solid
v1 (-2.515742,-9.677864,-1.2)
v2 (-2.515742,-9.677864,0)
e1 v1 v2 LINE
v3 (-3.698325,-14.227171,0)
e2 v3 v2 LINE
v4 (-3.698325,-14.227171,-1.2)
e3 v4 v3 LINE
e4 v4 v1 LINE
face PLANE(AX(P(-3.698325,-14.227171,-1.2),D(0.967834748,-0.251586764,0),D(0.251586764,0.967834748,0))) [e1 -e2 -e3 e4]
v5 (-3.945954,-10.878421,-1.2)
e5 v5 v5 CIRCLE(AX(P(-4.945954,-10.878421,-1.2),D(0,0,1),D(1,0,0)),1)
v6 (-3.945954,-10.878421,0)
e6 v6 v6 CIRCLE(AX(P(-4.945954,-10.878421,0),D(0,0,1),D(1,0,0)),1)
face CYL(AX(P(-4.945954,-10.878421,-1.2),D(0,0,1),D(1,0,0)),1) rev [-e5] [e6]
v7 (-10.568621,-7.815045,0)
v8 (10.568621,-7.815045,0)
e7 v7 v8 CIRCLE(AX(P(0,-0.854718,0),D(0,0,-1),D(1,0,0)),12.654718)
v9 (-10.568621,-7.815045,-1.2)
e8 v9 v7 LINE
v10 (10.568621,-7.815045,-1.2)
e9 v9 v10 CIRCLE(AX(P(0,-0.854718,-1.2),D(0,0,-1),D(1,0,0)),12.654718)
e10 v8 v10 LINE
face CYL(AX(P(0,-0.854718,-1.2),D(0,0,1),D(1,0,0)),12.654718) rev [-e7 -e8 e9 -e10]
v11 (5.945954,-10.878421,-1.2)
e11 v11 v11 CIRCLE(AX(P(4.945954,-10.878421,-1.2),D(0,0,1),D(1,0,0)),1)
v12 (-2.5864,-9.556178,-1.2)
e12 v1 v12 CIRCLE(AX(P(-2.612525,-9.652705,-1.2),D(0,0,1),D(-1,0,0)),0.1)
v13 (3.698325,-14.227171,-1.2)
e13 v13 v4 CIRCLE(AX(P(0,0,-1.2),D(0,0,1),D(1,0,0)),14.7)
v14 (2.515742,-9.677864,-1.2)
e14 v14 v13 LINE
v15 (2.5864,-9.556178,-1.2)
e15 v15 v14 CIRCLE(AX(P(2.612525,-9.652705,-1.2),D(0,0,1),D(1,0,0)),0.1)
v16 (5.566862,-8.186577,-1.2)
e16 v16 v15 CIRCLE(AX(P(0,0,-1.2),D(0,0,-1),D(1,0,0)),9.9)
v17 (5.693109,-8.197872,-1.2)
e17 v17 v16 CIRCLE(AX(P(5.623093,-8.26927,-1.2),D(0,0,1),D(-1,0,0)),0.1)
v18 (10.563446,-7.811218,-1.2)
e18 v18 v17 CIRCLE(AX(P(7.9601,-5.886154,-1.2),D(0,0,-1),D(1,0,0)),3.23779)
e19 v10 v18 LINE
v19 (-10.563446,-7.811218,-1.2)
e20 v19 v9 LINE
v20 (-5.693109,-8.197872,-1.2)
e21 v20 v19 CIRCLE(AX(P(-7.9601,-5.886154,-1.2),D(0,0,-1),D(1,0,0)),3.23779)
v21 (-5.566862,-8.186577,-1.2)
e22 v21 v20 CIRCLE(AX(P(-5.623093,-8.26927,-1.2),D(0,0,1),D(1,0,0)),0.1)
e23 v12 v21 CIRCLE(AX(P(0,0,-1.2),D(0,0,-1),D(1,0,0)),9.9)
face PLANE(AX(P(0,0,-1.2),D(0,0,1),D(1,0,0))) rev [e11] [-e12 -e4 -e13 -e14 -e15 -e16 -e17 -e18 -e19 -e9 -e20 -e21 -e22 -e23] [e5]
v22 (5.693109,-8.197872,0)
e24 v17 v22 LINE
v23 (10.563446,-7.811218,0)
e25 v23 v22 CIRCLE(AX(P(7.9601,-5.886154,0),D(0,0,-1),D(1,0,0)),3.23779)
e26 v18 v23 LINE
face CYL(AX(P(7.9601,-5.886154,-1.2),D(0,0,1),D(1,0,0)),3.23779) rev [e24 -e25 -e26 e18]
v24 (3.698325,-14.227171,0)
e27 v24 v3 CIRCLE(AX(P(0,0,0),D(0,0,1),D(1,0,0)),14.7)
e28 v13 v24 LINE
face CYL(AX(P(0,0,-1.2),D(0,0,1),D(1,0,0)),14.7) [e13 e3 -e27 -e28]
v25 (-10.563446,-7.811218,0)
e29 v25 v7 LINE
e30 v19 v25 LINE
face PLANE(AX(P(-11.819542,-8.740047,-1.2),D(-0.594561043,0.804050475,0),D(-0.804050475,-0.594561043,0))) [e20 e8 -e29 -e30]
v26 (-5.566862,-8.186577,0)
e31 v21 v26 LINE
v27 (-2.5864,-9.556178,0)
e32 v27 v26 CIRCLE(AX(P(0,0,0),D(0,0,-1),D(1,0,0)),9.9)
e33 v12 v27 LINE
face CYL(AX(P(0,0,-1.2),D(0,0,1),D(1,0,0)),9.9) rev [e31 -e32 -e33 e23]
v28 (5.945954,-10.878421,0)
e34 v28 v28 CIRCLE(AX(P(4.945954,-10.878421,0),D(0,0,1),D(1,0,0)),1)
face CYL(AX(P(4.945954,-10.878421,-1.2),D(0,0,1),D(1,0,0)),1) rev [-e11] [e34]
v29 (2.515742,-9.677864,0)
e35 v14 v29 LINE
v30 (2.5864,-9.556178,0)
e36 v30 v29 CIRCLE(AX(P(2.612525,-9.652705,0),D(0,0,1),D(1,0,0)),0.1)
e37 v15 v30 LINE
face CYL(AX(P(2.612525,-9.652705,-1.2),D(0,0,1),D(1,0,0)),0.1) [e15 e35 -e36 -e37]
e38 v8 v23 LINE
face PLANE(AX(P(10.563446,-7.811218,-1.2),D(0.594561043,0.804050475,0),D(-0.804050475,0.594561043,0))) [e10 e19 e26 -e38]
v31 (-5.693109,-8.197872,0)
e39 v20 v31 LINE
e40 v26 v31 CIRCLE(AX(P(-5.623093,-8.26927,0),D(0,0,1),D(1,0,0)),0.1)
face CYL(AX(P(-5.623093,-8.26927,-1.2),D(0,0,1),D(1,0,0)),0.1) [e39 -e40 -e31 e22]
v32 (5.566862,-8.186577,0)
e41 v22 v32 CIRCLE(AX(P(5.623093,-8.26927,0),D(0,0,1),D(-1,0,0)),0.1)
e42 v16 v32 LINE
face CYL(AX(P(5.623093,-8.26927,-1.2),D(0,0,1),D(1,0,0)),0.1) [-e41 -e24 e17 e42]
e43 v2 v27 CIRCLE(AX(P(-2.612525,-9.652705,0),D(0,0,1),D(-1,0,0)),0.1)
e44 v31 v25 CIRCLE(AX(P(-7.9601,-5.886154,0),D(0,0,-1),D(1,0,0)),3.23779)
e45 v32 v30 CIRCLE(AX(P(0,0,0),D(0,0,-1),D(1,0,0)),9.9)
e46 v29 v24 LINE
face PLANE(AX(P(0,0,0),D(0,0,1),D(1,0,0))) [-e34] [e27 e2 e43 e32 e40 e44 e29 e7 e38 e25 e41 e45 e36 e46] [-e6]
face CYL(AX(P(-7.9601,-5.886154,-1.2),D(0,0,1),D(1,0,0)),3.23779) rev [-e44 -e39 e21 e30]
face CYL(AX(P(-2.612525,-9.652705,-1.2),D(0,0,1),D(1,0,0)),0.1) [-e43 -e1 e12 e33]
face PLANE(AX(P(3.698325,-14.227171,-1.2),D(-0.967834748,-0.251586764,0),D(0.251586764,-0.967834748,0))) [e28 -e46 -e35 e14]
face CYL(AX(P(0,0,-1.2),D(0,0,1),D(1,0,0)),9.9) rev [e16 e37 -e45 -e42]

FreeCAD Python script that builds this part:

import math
import FreeCAD as App
import Part
import Sketcher
from FreeCAD import Vector

doc = App.newDocument("Part")
params = doc.addObject("Spreadsheet::Sheet", "Params")
for row, (alias, value) in enumerate([
    ("sketch1_diameter", "2 mm"),
    ("sketch1_radius", "14.7 mm"),
    ("sketch1_radius2", "2.05 mm"),
    ("pad1_length", "1.2 mm"),
    ("sketch2_diameter", "2 mm"),
    ("sketch2_radius", "14.7 mm"),
    ("sketch2_radius2", "0.1 mm"),
    ("sketch2_radius3", "9.9 mm"),
    ("pad2_length", "1.2 mm"),
], start=1):
    params.set(f"A{row}", alias)
    params.set(f"B{row}", "=" + value)
    params.setAlias(f"B{row}", alias)

body = doc.addObject("PartDesign::Body", "Body")

# Sketch on XY plane
sketch1 = body.newObject("Sketcher::SketchObject", "Sketch")
sketch1.AttachmentSupport = (doc.getObject("XY_Plane"), [""])
sketch1.MapMode = "FlatFace"
sketch1.addGeometry([
    Part.LineSegment(Vector(2.961893, -11.394173, 0), Vector(3.698325, -14.227171, 0)),  # 0
    Part.ArcOfCircle(Part.Circle(Vector(0, 0, 0), Vector(0, 0, 1), 14.7), math.radians(-75.428571), math.radians(255.428571)),  # 1
    Part.LineSegment(Vector(-3.698325, -14.227171, 0), Vector(-2.961893, -11.394173, 0)),  # 2
    Part.ArcOfCircle(Part.Circle(Vector(-4.945954, -10.878421, 0), Vector(0, 0, 1), 2.05), math.radians(-14.571429), math.radians(135.102389)),  # 3
    Part.ArcOfCircle(Part.Circle(Vector(-7.850268, -7.984468, 0), Vector(0, 0, 1), 2.05), math.radians(-137.753727), math.radians(-44.897611)),  # 4
    Part.ArcOfCircle(Part.Circle(Vector(0, -0.854718, 0), Vector(0, 0, 1), 12.654718), math.radians(-42.246273), math.radians(222.246273)),  # 5
    Part.ArcOfCircle(Part.Circle(Vector(7.850268, -7.984468, 0), Vector(0, 0, 1), 2.05), math.radians(-135.102389), math.radians(-42.246273)),  # 6
    Part.ArcOfCircle(Part.Circle(Vector(4.945954, -10.878421, 0), Vector(0, 0, 1), 2.05), math.radians(44.897611), math.radians(194.571429)),  # 7
    Part.Circle(Vector(4.945954, -10.878421, 0), Vector(0, 0, 1), 1),  # 8
    Part.Circle(Vector(-4.945954, -10.878421, 0), Vector(0, 0, 1), 1),  # 9
], False)
sketch1.addConstraint([
    Sketcher.Constraint("Coincident", 0, 2, 1, 1),
    Sketcher.Constraint("Coincident", 1, 2, 2, 1),
    Sketcher.Constraint("Tangent", 2, 2, 3, 1),
    Sketcher.Constraint("Tangent", 3, 2, 4, 2),
    Sketcher.Constraint("Tangent", 4, 1, 5, 2),
    Sketcher.Constraint("Tangent", 5, 1, 6, 2),
    Sketcher.Constraint("Tangent", 6, 1, 7, 1),
    Sketcher.Constraint("Tangent", 7, 2, 0, 1),
    Sketcher.Constraint("Coincident", 1, 3, -1, 1),
    Sketcher.Constraint("Coincident", 8, 3, 7, 3),
    Sketcher.Constraint("Coincident", 9, 3, 3, 3),
    Sketcher.Constraint("Equal", 3, 4),
    Sketcher.Constraint("Equal", 4, 6),
    Sketcher.Constraint("Equal", 6, 7),
    Sketcher.Constraint("Equal", 8, 9),
    Sketcher.Constraint("Symmetric", 4, 3, 6, 3, -2),
    Sketcher.Constraint("Symmetric", 2, 2, 7, 2, -2),
    Sketcher.Constraint("Diameter", 8, 2.0),
    Sketcher.Constraint("Radius", 1, 14.7),
    Sketcher.Constraint("Radius", 3, 2.05),
    Sketcher.Constraint("Radius", 5, 12.654718),
    Sketcher.Constraint("DistanceY", 9, 3, 4, 1, 1.515699),
    Sketcher.Constraint("DistanceX", 2, 2, 5, 1, 12.329699),
    Sketcher.Constraint("Distance", 0, 2.92715),
    Sketcher.Constraint("DistanceY", 3, 3, -1, 1, 10.878421),
])
sketch1.setExpression("Constraints[17]", "Params.sketch1_diameter")
sketch1.setExpression("Constraints[18]", "Params.sketch1_radius")
sketch1.setExpression("Constraints[19]", "Params.sketch1_radius2")
pad1 = body.newObject("PartDesign::Pad", "Pad")
pad1.Profile = sketch1
pad1.setExpression("Length", "Params.pad1_length")
pad1.Reversed = True

# Sketch on XY plane
sketch2 = body.newObject("Sketcher::SketchObject", "Sketch001")
sketch2.AttachmentSupport = (doc.getObject("XY_Plane"), [""])
sketch2.MapMode = "FlatFace"
sketch2.addGeometry([
    Part.LineSegment(Vector(2.515742, -9.677864, 0), Vector(3.698325, -14.227171, 0)),  # 0
    Part.ArcOfCircle(Part.Circle(Vector(0, 0, 0), Vector(0, 0, 1), 14.7), math.radians(-75.428571), math.radians(-36.481346)),  # 1
    Part.LineSegment(Vector(11.819542, -8.740047, 0), Vector(10.563446, -7.811218, 0)),  # 2
    Part.ArcOfCircle(Part.Circle(Vector(7.9601, -5.886154, 0), Vector(0, 0, 1), 3.23779), math.radians(-134.440321), math.radians(-36.481346)),  # 3
    Part.ArcOfCircle(Part.Circle(Vector(5.623093, -8.26927, 0), Vector(0, 0, 1), 0.1), math.radians(45.55968), math.radians(124.21565)),  # 4
    Part.ArcOfCircle(Part.Circle(Vector(0, 0, 0), Vector(0, 0, 1), 9.9), math.radians(-74.855604), math.radians(-55.78435)),  # 5
    Part.ArcOfCircle(Part.Circle(Vector(2.612525, -9.652705, 0), Vector(0, 0, 1), 0.1), math.radians(105.144396), math.radians(194.571428)),  # 6
    Part.Circle(Vector(4.945954, -10.878421, 0), Vector(0, 0, 1), 1),  # 7
    Part.LineSegment(Vector(-3.698325, -14.227171, 0), Vector(-2.515742, -9.677864, 0)),  # 8
    Part.ArcOfCircle(Part.Circle(Vector(-2.612525, -9.652705, 0), Vector(0, 0, 1), 0.1), math.radians(-14.571428), math.radians(74.855604)),  # 9
    Part.ArcOfCircle(Part.Circle(Vector(0, 0, 0), Vector(0, 0, 1), 9.9), math.radians(-124.21565), math.radians(-105.144396)),  # 10
    Part.ArcOfCircle(Part.Circle(Vector(-5.623093, -8.26927, 0), Vector(0, 0, 1), 0.1), math.radians(55.78435), math.radians(134.44032)),  # 11
    Part.ArcOfCircle(Part.Circle(Vector(-7.9601, -5.886154, 0), Vector(0, 0, 1), 3.23779), math.radians(-143.518654), math.radians(-45.559679)),  # 12
    Part.LineSegment(Vector(-10.563446, -7.811218, 0), Vector(-11.819542, -8.740047, 0)),  # 13
    Part.ArcOfCircle(Part.Circle(Vector(0, 0, 0), Vector(0, 0, 1), 14.7), math.radians(-143.518654), math.radians(-104.571429)),  # 14
    Part.Circle(Vector(-4.945954, -10.878421, 0), Vector(0, 0, 1), 1),  # 15
], False)
sketch2.addConstraint([
    Sketcher.Constraint("Coincident", 0, 2, 1, 1),
    Sketcher.Constraint("Coincident", 1, 2, 2, 1),
    Sketcher.Constraint("Coincident", 2, 2, 3, 2),
    Sketcher.Constraint("Tangent", 3, 1, 4, 1),
    Sketcher.Constraint("Tangent", 4, 2, 5, 2),
    Sketcher.Constraint("Tangent", 5, 1, 6, 1),
    Sketcher.Constraint("Tangent", 6, 2, 0, 1),
    Sketcher.Constraint("Tangent", 8, 2, 9, 1),
    Sketcher.Constraint("Tangent", 9, 2, 10, 2),
    Sketcher.Constraint("Tangent", 10, 1, 11, 1),
    Sketcher.Constraint("Tangent", 11, 2, 12, 2),
    Sketcher.Constraint("Coincident", 12, 1, 13, 1),
    Sketcher.Constraint("Coincident", 13, 2, 14, 1),
    Sketcher.Constraint("Coincident", 14, 2, 8, 1),
    Sketcher.Constraint("Coincident", 1, 3, -1, 1),
    Sketcher.Constraint("Coincident", 5, 3, -1, 1),
    Sketcher.Constraint("Coincident", 10, 3, -1, 1),
    Sketcher.Constraint("Coincident", 14, 3, -1, 1),
    Sketcher.Constraint("Equal", 4, 6),
    Sketcher.Constraint("Equal", 6, 9),
    Sketcher.Constraint("Equal", 5, 10),
    Sketcher.Constraint("Equal", 9, 11),
    Sketcher.Constraint("Equal", 3, 12),
    Sketcher.Constraint("Equal", 1, 14),
    Sketcher.Constraint("Equal", 7, 15),
    Sketcher.Constraint("Symmetric", 3, 3, 12, 3, -2),
    Sketcher.Constraint("Symmetric", 7, 3, 15, 3, -2),
    Sketcher.Constraint("Symmetric", 6, 2, 8, 2, -2),
    Sketcher.Constraint("Horizontal", 2, 2, 12, 1),
    Sketcher.Constraint("Horizontal", 1, 2, 13, 2),
    Sketcher.Constraint("Diameter", 7, 2.0),
    Sketcher.Constraint("Radius", 1, 14.7),
    Sketcher.Constraint("Radius", 4, 0.1),
    Sketcher.Constraint("Radius", 5, 9.9),
    Sketcher.Constraint("Radius", 3, 3.23779),
    Sketcher.Constraint("Distance", 0, 4.7005),
    Sketcher.Constraint("DistanceX", -1, 1, 3, 3, 7.9601),
    Sketcher.Constraint("DistanceX", -1, 1, 5, 1, 2.5864),
    Sketcher.Constraint("DistanceY", 0, 2, 4, 3, 5.957901),
    Sketcher.Constraint("DistanceY", 7, 3, -1, 1, 10.878421),
    Sketcher.Constraint("DistanceX", -1, 1, 1, 2, 11.819542),
    Sketcher.Constraint("DistanceY", 2, 2, -1, 1, 7.811218),
    Sketcher.Constraint("DistanceX", 6, 3, 7, 3, 2.333429),
])
sketch2.setExpression("Constraints[30]", "Params.sketch2_diameter")
sketch2.setExpression("Constraints[31]", "Params.sketch2_radius")
sketch2.setExpression("Constraints[32]", "Params.sketch2_radius2")
sketch2.setExpression("Constraints[33]", "Params.sketch2_radius3")
pad2 = body.newObject("PartDesign::Pad", "Pad001")
pad2.Profile = sketch2
pad2.setExpression("Length", "Params.pad2_length")
pad2.Reversed = True

doc.recompute()
